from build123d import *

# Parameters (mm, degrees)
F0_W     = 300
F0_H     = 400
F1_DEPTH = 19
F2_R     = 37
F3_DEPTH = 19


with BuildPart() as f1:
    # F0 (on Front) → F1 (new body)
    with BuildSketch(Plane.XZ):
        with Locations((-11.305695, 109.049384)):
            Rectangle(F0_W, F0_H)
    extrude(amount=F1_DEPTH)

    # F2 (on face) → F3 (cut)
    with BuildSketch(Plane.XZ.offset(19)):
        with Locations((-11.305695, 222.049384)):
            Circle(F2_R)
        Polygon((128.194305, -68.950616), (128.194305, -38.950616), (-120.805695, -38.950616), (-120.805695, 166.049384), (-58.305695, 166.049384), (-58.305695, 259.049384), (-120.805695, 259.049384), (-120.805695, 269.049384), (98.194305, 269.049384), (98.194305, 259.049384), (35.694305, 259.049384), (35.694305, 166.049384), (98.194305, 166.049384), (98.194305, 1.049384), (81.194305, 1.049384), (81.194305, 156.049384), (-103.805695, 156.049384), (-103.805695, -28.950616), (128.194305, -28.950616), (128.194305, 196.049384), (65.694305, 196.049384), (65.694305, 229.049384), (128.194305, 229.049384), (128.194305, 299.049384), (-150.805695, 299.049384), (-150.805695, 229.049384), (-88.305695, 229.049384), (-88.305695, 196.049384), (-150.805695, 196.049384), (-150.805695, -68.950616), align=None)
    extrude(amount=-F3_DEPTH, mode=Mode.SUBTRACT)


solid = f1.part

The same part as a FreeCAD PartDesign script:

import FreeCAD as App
import Part
import Sketcher

V = App.Vector

doc = App.newDocument("Part")
params = doc.addObject("Spreadsheet::Sheet", "Params")
for row, (alias, value) in enumerate([
    ("sketch1_width", "300 mm"),
    ("sketch1_height", "400 mm"),
    ("pad1_length", "19 mm"),
    ("sketch2_diameter", "74 mm"),
    ("sketch2_width", "249 mm"),
    ("sketch2_width2", "219 mm"),
    ("sketch2_width3", "17 mm"),
    ("sketch2_width4", "185 mm"),
    ("pocket1_length", "19 mm"),
], start=1):
    params.set(f"A{row}", alias)
    params.set(f"B{row}", "=" + value)
    params.setAlias(f"B{row}", alias)

body = doc.addObject("PartDesign::Body", "Body")

# Sketch on XZ plane
sketch1 = body.newObject("Sketcher::SketchObject", "Sketch")
sketch1.AttachmentSupport = (doc.getObject("XZ_Plane"), [""])
sketch1.MapMode = "FlatFace"
sketch1.addGeometry(Part.LineSegment(V(-161.305695, 309.049384, 0), V(-161.305695, -90.950616, 0)), False)
sketch1.addGeometry(Part.LineSegment(V(-161.305695, -90.950616, 0), V(138.694305, -90.950616, 0)), False)
sketch1.addGeometry(Part.LineSegment(V(138.694305, -90.950616, 0), V(138.694305, 309.049384, 0)), False)
sketch1.addGeometry(Part.LineSegment(V(138.694305, 309.049384, 0), V(-161.305695, 309.049384, 0)), False)
sketch1.addConstraint(Sketcher.Constraint("Coincident", 0, 2, 1, 1))
sketch1.addConstraint(Sketcher.Constraint("Coincident", 1, 2, 2, 1))
sketch1.addConstraint(Sketcher.Constraint("Coincident", 2, 2, 3, 1))
sketch1.addConstraint(Sketcher.Constraint("Coincident", 3, 2, 0, 1))
sketch1.addConstraint(Sketcher.Constraint("Vertical", 0))
sketch1.addConstraint(Sketcher.Constraint("Horizontal", 1))
sketch1.addConstraint(Sketcher.Constraint("Vertical", 2))
sketch1.addConstraint(Sketcher.Constraint("Horizontal", 3))
sketch1.addConstraint(Sketcher.Constraint("DistanceX", 1, 1, 1, 2, 300.0))
sketch1.addConstraint(Sketcher.Constraint("DistanceY", 0, 2, 0, 1, 400.0))
sketch1.addConstraint(Sketcher.Constraint("DistanceX", 0, 2, -1, 1, 161.305695))
sketch1.addConstraint(Sketcher.Constraint("DistanceY", 0, 2, -1, 1, 90.950616))
sketch1.setExpression("Constraints[8]", "Params.sketch1_width")
sketch1.setExpression("Constraints[9]", "Params.sketch1_height")
pad1 = body.newObject("PartDesign::Pad", "Pad")
pad1.Profile = sketch1
pad1.setExpression("Length", "Params.pad1_length")

# Sketch on XZ plane
sketch2 = body.newObject("Sketcher::SketchObject", "Sketch001")
sketch2.AttachmentSupport = (doc.getObject("XZ_Plane"), [""])
sketch2.MapMode = "FlatFace"
sketch2.AttachmentOffset = App.Placement(V(0, 0, 19), App.Rotation())
sketch2.addGeometry(Part.Circle(V(-11.305695, 222.049384, 0), V(0, 0, 1), 37), False)
sketch2.addGeometry(Part.LineSegment(V(128.194305, -68.950616, 0), V(128.194305, -38.950616, 0)), False)
sketch2.addGeometry(Part.LineSegment(V(128.194305, -38.950616, 0), V(-120.805695, -38.950616, 0)), False)
sketch2.addGeometry(Part.LineSegment(V(-120.805695, -38.950616, 0), V(-120.805695, 166.049384, 0)), False)
sketch2.addGeometry(Part.LineSegment(V(-120.805695, 166.049384, 0), V(-58.305695, 166.049384, 0)), False)
sketch2.addGeometry(Part.LineSegment(V(-58.305695, 166.049384, 0), V(-58.305695, 259.049384, 0)), False)
sketch2.addGeometry(Part.LineSegment(V(-58.305695, 259.049384, 0), V(-120.805695, 259.049384, 0)), False)
sketch2.addGeometry(Part.LineSegment(V(-120.805695, 259.049384, 0), V(-120.805695, 269.049384, 0)), False)
sketch2.addGeometry(Part.LineSegment(V(-120.805695, 269.049384, 0), V(98.194305, 269.049384, 0)), False)
sketch2.addGeometry(Part.LineSegment(V(98.194305, 269.049384, 0), V(98.194305, 259.049384, 0)), False)
sketch2.addGeometry(Part.LineSegment(V(98.194305, 259.049384, 0), V(35.694305, 259.049384, 0)), False)
sketch2.addGeometry(Part.LineSegment(V(35.694305, 259.049384, 0), V(35.694305, 166.049384, 0)), False)
sketch2.addGeometry(Part.LineSegment(V(35.694305, 166.049384, 0), V(98.194305, 166.049384, 0)), False)
sketch2.addGeometry(Part.LineSegment(V(98.194305, 166.049384, 0), V(98.194305, 1.049384, 0)), False)
sketch2.addGeometry(Part.LineSegment(V(98.194305, 1.049384, 0), V(81.194305, 1.049384, 0)), False)
sketch2.addGeometry(Part.LineSegment(V(81.194305, 1.049384, 0), V(81.194305, 156.049384, 0)), False)
sketch2.addGeometry(Part.LineSegment(V(81.194305, 156.049384, 0), V(-103.805695, 156.049384, 0)), False)
sketch2.addGeometry(Part.LineSegment(V(-103.805695, 156.049384, 0), V(-103.805695, -28.950616, 0)), False)
sketch2.addGeometry(Part.LineSegment(V(-103.805695, -28.950616, 0), V(128.194305, -28.950616, 0)), False)
sketch2.addGeometry(Part.LineSegment(V(128.194305, -28.950616, 0), V(128.194305, 196.049384, 0)), False)
sketch2.addGeometry(Part.LineSegment(V(128.194305, 196.049384, 0), V(65.694305, 196.049384, 0)), False)
sketch2.addGeometry(Part.LineSegment(V(65.694305, 196.049384, 0), V(65.694305, 229.049384, 0)), False)
sketch2.addGeometry(Part.LineSegment(V(65.694305, 229.049384, 0), V(128.194305, 229.049384, 0)), False)
sketch2.addGeometry(Part.LineSegment(V(128.194305, 229.049384, 0), V(128.194305, 299.049384, 0)), False)
sketch2.addGeometry(Part.LineSegment(V(128.194305, 299.049384, 0), V(-150.805695, 299.049384, 0)), False)
sketch2.addGeometry(Part.LineSegment(V(-150.805695, 299.049384, 0), V(-150.805695, 229.049384, 0)), False)
sketch2.addGeometry(Part.LineSegment(V(-150.805695, 229.049384, 0), V(-88.305695, 229.049384, 0)), False)
sketch2.addGeometry(Part.LineSegment(V(-88.305695, 229.049384, 0), V(-88.305695, 196.049384, 0)), False)
sketch2.addGeometry(Part.LineSegment(V(-88.305695, 196.049384, 0), V(-150.805695, 196.049384, 0)), False)
sketch2.addGeometry(Part.LineSegment(V(-150.805695, 196.049384, 0), V(-150.805695, -68.950616, 0)), False)
sketch2.addGeometry(Part.LineSegment(V(-150.805695, -68.950616, 0), V(128.194305, -68.950616, 0)), False)
sketch2.addConstraint(Sketcher.Constraint("Coincident", 1, 2, 2, 1))
sketch2.addConstraint(Sketcher.Constraint("Coincident", 2, 2, 3, 1))
sketch2.addConstraint(Sketcher.Constraint("Coincident", 3, 2, 4, 1))
sketch2.addConstraint(Sketcher.Constraint("Coincident", 4, 2, 5, 1))
sketch2.addConstraint(Sketcher.Constraint("Coincident", 5, 2, 6, 1))
sketch2.addConstraint(Sketcher.Constraint("Coincident", 6, 2, 7, 1))
sketch2.addConstraint(Sketcher.Constraint("Coincident", 7, 2, 8, 1))
sketch2.addConstraint(Sketcher.Constraint("Coincident", 8, 2, 9, 1))
sketch2.addConstraint(Sketcher.Constraint("Coincident", 9, 2, 10, 1))
sketch2.addConstraint(Sketcher.Constraint("Coincident", 10, 2, 11, 1))
sketch2.addConstraint(Sketcher.Constraint("Coincident", 11, 2, 12, 1))
sketch2.addConstraint(Sketcher.Constraint("Coincident", 12, 2, 13, 1))
sketch2.addConstraint(Sketcher.Constraint("Coincident", 13, 2, 14, 1))
sketch2.addConstraint(Sketcher.Constraint("Coincident", 14, 2, 15, 1))
sketch2.addConstraint(Sketcher.Constraint("Coincident", 15, 2, 16, 1))
sketch2.addConstraint(Sketcher.Constraint("Coincident", 16, 2, 17, 1))
sketch2.addConstraint(Sketcher.Constraint("Coincident", 17, 2, 18, 1))
sketch2.addConstraint(Sketcher.Constraint("Coincident", 18, 2, 19, 1))
sketch2.addConstraint(Sketcher.Constraint("Coincident", 19, 2, 20, 1))
sketch2.addConstraint(Sketcher.Constraint("Coincident", 20, 2, 21, 1))
sketch2.addConstraint(Sketcher.Constraint("Coincident", 21, 2, 22, 1))
sketch2.addConstraint(Sketcher.Constraint("Coincident", 22, 2, 23, 1))
sketch2.addConstraint(Sketcher.Constraint("Coincident", 23, 2, 24, 1))
sketch2.addConstraint(Sketcher.Constraint("Coincident", 24, 2, 25, 1))
sketch2.addConstraint(Sketcher.Constraint("Coincident", 25, 2, 26, 1))
sketch2.addConstraint(Sketcher.Constraint("Coincident", 26, 2, 27, 1))
sketch2.addConstraint(Sketcher.Constraint("Coincident", 27, 2, 28, 1))
sketch2.addConstraint(Sketcher.Constraint("Coincident", 28, 2, 29, 1))
sketch2.addConstraint(Sketcher.Constraint("Coincident", 29, 2, 30, 1))
sketch2.addConstraint(Sketcher.Constraint("Coincident", 30, 2, 1, 1))
sketch2.addConstraint(Sketcher.Constraint("Vertical", 1))
sketch2.addConstraint(Sketcher.Constraint("Horizontal", 2))
sketch2.addConstraint(Sketcher.Constraint("Vertical", 3))
sketch2.addConstraint(Sketcher.Constraint("Horizontal", 4))
sketch2.addConstraint(Sketcher.Constraint("Vertical", 5))
sketch2.addConstraint(Sketcher.Constraint("Horizontal", 6))
sketch2.addConstraint(Sketcher.Constraint("Vertical", 7))
sketch2.addConstraint(Sketcher.Constraint("Horizontal", 8))
sketch2.addConstraint(Sketcher.Constraint("Vertical", 9))
sketch2.addConstraint(Sketcher.Constraint("Horizontal", 10))
sketch2.addConstraint(Sketcher.Constraint("Vertical", 11))
sketch2.addConstraint(Sketcher.Constraint("Horizontal", 12))
sketch2.addConstraint(Sketcher.Constraint("Vertical", 13))
sketch2.addConstraint(Sketcher.Constraint("Horizontal", 14))
sketch2.addConstraint(Sketcher.Constraint("Vertical", 15))
sketch2.addConstraint(Sketcher.Constraint("Horizontal", 16))
sketch2.addConstraint(Sketcher.Constraint("Vertical", 17))
sketch2.addConstraint(Sketcher.Constraint("Horizontal", 18))
sketch2.addConstraint(Sketcher.Constraint("Vertical", 19))
sketch2.addConstraint(Sketcher.Constraint("Horizontal", 20))
sketch2.addConstraint(Sketcher.Constraint("Vertical", 21))
sketch2.addConstraint(Sketcher.Constraint("Horizontal", 22))
sketch2.addConstraint(Sketcher.Constraint("Vertical", 23))
sketch2.addConstraint(Sketcher.Constraint("Horizontal", 24))
sketch2.addConstraint(Sketcher.Constraint("Vertical", 25))
sketch2.addConstraint(Sketcher.Constraint("Horizontal", 26))
sketch2.addConstraint(Sketcher.Constraint("Vertical", 27))
sketch2.addConstraint(Sketcher.Constraint("Horizontal", 28))
sketch2.addConstraint(Sketcher.Constraint("Vertical", 29))
sketch2.addConstraint(Sketcher.Constraint("Horizontal", 30))
sketch2.addConstraint(Sketcher.Constraint("Horizontal", 6, 2, 9, 2))
sketch2.addConstraint(Sketcher.Constraint("Horizontal", 4, 2, 11, 2))
sketch2.addConstraint(Sketcher.Constraint("Horizontal", 22, 2, 25, 2))
sketch2.addConstraint(Sketcher.Constraint("Horizontal", 20, 2, 27, 2))
sketch2.addConstraint(Sketcher.Constraint("Vertical", 3, 2, 6, 2))
sketch2.addConstraint(Sketcher.Constraint("Vertical", 9, 2, 12, 2))
sketch2.addConstraint(Sketcher.Constraint("Vertical", 1, 2, 18, 2))
sketch2.addConstraint(Sketcher.Constraint("Vertical", 19, 2, 22, 2))
sketch2.addConstraint(Sketcher.Constraint("Vertical", 25, 2, 28, 2))
sketch2.addConstraint(Sketcher.Constraint("Equal", 6, 10))
sketch2.addConstraint(Sketcher.Constraint("Equal", 12, 20))
sketch2.addConstraint(Sketcher.Constraint("Equal", 22, 26))
sketch2.addConstraint(Sketcher.Constraint("Equal", 16, 17))
sketch2.addConstraint(Sketcher.Constraint("Diameter", 0, 74.0))
sketch2.addConstraint(Sketcher.Constraint("DistanceX", 2, 2, 2, 1, 249.0))
sketch2.addConstraint(Sketcher.Constraint("DistanceX", 8, 1, 8, 2, 219.0))
sketch2.addConstraint(Sketcher.Constraint("DistanceX", 14, 2, 14, 1, 17.0))
sketch2.addConstraint(Sketcher.Constraint("DistanceX", 16, 2, 16, 1, 185.0))
sketch2.addConstraint(Sketcher.Constraint("DistanceX", 24, 2, 24, 1, 279.0))
sketch2.addConstraint(Sketcher.Constraint("DistanceY", 1, 1, 1, 2, 30.0))
sketch2.addConstraint(Sketcher.Constraint("DistanceY", 3, 1, 3, 2, 205.0))
sketch2.addConstraint(Sketcher.Constraint("DistanceY", 5, 1, 5, 2, 93.0))
sketch2.addConstraint(Sketcher.Constraint("DistanceY", 7, 1, 7, 2, 10.0))
sketch2.addConstraint(Sketcher.Constraint("DistanceY", 13, 2, 13, 1, 165.0))
sketch2.addConstraint(Sketcher.Constraint("DistanceY", 15, 1, 15, 2, 155.0))
sketch2.addConstraint(Sketcher.Constraint("DistanceY", 19, 1, 19, 2, 225.0))
sketch2.addConstraint(Sketcher.Constraint("DistanceY", 21, 1, 21, 2, 33.0))
sketch2.addConstraint(Sketcher.Constraint("DistanceY", 23, 1, 23, 2, 70.0))
sketch2.addConstraint(Sketcher.Constraint("DistanceX", 4, 1, 4, 2, 62.5))
sketch2.addConstraint(Sketcher.Constraint("DistanceY", 1, 2, 0, 3, 261.0))
sketch2.addConstraint(Sketcher.Constraint("DistanceX", 4, 2, 0, 3, 47.0))
sketch2.addConstraint(Sketcher.Constraint("DistanceX", 0, 3, -1, 1, 11.305695))
sketch2.addConstraint(Sketcher.Constraint("DistanceY", -1, 1, 0, 3, 222.049384))
sketch2.setExpression("Constraints[73]", "Params.sketch2_diameter")
sketch2.setExpression("Constraints[74]", "Params.sketch2_width")
sketch2.setExpression("Constraints[75]", "Params.sketch2_width2")
sketch2.setExpression("Constraints[76]", "Params.sketch2_width3")
sketch2.setExpression("Constraints[77]", "Params.sketch2_width4")
pocket1 = body.newObject("PartDesign::Pocket", "Pocket")
pocket1.Profile = sketch2
pocket1.setExpression("Length", "Params.pocket1_length")

doc.recompute()
